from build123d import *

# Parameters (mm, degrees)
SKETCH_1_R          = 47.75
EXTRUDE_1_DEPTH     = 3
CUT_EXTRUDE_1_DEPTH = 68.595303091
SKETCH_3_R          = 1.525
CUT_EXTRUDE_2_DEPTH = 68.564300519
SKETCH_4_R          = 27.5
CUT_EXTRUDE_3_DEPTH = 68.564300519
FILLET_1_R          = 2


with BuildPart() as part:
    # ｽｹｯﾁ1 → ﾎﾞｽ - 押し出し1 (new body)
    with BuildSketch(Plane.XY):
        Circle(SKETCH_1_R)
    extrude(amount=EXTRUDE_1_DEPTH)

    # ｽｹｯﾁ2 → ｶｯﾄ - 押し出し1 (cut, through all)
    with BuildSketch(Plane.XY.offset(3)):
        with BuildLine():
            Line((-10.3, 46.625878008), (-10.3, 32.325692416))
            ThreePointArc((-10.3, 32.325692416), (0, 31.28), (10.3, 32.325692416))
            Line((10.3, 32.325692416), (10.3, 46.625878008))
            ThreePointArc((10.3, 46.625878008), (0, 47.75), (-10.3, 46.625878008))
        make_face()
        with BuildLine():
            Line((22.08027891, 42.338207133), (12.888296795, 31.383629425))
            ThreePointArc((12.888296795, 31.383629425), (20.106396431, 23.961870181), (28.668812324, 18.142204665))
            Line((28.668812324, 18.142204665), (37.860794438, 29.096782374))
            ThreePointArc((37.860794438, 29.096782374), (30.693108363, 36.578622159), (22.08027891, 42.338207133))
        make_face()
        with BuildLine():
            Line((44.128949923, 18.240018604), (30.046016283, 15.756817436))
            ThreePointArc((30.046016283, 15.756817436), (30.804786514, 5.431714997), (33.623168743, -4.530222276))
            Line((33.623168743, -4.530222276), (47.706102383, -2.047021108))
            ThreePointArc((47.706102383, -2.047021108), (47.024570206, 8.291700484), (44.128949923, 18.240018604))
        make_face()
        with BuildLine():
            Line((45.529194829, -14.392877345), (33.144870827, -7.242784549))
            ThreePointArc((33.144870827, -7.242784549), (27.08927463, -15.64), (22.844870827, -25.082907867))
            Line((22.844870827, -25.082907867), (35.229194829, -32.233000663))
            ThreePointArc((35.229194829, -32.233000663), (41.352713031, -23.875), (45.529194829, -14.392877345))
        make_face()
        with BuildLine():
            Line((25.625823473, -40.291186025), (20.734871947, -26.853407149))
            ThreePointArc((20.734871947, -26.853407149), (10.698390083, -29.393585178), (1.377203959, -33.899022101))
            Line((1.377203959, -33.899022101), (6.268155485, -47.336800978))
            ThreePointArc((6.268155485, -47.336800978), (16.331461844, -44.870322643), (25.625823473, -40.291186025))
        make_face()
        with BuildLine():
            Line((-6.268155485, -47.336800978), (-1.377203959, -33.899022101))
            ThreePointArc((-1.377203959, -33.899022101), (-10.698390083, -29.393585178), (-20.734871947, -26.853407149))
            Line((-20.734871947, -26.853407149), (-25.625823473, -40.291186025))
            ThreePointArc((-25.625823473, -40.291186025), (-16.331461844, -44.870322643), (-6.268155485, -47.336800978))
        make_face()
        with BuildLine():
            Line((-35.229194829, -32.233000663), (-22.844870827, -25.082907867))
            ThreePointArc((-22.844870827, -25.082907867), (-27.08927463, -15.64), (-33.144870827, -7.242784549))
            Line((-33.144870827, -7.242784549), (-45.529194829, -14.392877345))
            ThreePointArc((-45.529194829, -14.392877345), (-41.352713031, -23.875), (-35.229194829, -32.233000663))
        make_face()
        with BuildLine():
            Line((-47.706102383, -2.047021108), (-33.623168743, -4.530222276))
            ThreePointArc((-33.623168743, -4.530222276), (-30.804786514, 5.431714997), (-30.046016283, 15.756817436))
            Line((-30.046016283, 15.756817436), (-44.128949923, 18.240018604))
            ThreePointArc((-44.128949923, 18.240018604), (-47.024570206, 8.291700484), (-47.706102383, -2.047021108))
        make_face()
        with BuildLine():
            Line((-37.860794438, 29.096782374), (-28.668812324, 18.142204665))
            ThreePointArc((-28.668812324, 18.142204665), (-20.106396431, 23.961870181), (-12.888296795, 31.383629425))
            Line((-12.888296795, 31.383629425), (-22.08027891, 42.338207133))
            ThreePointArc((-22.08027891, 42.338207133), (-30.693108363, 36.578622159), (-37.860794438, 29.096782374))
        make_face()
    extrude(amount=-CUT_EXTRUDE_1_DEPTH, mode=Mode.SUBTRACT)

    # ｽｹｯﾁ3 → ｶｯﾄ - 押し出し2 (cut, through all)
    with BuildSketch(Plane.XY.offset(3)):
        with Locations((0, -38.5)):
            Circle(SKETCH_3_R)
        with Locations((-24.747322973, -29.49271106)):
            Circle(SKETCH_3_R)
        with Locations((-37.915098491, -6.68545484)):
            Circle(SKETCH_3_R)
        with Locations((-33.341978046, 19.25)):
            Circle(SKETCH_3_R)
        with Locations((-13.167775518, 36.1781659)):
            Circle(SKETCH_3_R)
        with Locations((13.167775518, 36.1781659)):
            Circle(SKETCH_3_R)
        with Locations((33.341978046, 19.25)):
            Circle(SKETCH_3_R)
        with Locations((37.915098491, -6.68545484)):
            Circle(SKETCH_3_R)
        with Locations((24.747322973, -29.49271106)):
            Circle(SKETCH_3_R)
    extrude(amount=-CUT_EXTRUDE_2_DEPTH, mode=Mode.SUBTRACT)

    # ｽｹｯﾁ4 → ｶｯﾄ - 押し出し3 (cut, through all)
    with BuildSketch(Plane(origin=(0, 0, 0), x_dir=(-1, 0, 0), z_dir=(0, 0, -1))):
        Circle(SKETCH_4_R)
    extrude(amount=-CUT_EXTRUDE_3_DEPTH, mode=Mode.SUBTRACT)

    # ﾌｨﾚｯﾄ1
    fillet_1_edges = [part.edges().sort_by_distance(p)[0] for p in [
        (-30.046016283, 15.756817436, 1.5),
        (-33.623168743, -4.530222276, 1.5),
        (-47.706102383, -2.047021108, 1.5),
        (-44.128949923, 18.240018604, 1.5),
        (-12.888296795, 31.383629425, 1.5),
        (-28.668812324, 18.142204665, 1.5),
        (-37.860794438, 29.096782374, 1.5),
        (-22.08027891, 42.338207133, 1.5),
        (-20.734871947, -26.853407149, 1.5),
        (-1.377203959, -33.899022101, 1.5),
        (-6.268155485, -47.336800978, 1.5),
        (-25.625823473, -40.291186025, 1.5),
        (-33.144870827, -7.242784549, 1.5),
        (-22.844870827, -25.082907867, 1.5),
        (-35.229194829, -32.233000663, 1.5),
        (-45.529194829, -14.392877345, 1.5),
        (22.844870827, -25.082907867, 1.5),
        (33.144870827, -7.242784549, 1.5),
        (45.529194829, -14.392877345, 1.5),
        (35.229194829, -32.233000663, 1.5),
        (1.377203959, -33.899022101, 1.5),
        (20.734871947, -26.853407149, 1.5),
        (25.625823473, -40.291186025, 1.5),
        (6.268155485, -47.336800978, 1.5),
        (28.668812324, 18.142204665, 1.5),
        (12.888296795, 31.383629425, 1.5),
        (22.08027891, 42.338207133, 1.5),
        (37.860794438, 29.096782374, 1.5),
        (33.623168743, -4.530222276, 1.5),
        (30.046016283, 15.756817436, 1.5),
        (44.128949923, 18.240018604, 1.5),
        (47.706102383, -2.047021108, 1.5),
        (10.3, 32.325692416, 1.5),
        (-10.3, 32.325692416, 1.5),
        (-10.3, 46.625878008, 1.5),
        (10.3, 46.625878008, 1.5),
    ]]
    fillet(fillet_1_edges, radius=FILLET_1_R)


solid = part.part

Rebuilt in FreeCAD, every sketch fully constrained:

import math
import FreeCAD as App
import Part
import Sketcher

V = App.Vector
Q = App.Units.Quantity


def edges_at(feature, points):
    """Names of the edges that pass closest to the given points."""
    edges = feature.Shape.Edges
    near = lambda p: min(range(len(edges)), key=lambda i: edges[i].distToShape(Part.Vertex(*p))[0])
    return sorted({f"Edge{near(p) + 1}" for p in points})

doc = App.newDocument("Part")
body = doc.addObject("PartDesign::Body", "Body")

# Sketch on XY plane
sketch1 = body.newObject("Sketcher::SketchObject", "Sketch")
sketch1.AttachmentSupport = (doc.getObject("XY_Plane"), [""])
sketch1.MapMode = "FlatFace"
sketch1.addGeometry(Part.Circle(V(0, 0, 0), V(0, 0, 1), 47.75), False)
sketch1.addConstraint([
    Sketcher.Constraint("Coincident", 0, 3, -1, 1),
    Sketcher.Constraint("Diameter", 0, Q("95.5 mm")),
])
pad1 = body.newObject("PartDesign::Pad", "Pad")
pad1.Profile = sketch1
pad1.Length = 3

# Sketch on XY plane
sketch2 = body.newObject("Sketcher::SketchObject", "Sketch001")
sketch2.AttachmentSupport = (doc.getObject("XY_Plane"), [""])
sketch2.MapMode = "FlatFace"
sketch2.AttachmentOffset = App.Placement(V(0, 0, 3), App.Rotation())
sketch2.addGeometry([
    Part.LineSegment(V(-10.3, 46.625878, 0), V(-10.3, 32.325692, 0)),  # 0
    Part.ArcOfCircle(Part.Circle(V(0, 82.53, 0), V(0, 0, 1), 51.25), math.radians(-101.594016), math.radians(-78.405984)),  # 1
    Part.LineSegment(V(10.3, 32.325692, 0), V(10.3, 46.625878, 0)),  # 2
    Part.ArcOfCircle(Part.Circle(V(0, 0, 0), V(0, 0, 1), 47.75), math.radians(77.543003), math.radians(102.456997)),  # 3
    Part.LineSegment(V(22.080279, 42.338207, 0), V(12.888297, 31.383629, 0)),  # 4
    Part.ArcOfCircle(Part.Circle(V(53.049261, 63.221648, 0), V(0, 0, 1), 51.25), math.radians(-141.594016), math.radians(-118.405984)),  # 5
    Part.LineSegment(V(28.668812, 18.142205, 0), V(37.860794, 29.096782, 0)),  # 6
    Part.ArcOfCircle(Part.Circle(V(0, 0, 0), V(0, 0, 1), 47.75), math.radians(37.543003), math.radians(62.456997)),  # 7
    Part.LineSegment(V(44.12895, 18.240019, 0), V(30.046016, 15.756817, 0)),  # 8
    Part.ArcOfCircle(Part.Circle(V(81.276184, 14.331184, 0), V(0, 0, 1), 51.25), math.radians(178.405984), math.radians(201.594016)),  # 9
    Part.LineSegment(V(33.623169, -4.530222, 0), V(47.706102, -2.047021, 0)),  # 10
    Part.ArcOfCircle(Part.Circle(V(0, 0, 0), V(0, 0, 1), 47.75), math.radians(-2.456997), math.radians(22.456997)),  # 11
    Part.LineSegment(V(45.529195, -14.392877, 0), V(33.144871, -7.242785, 0)),  # 12
    Part.ArcOfCircle(Part.Circle(V(71.473077, -41.265, 0), V(0, 0, 1), 51.25), math.radians(138.405984), math.radians(161.594016)),  # 13
    Part.LineSegment(V(22.844871, -25.082908, 0), V(35.229195, -32.233001, 0)),  # 14
    Part.ArcOfCircle(Part.Circle(V(0, 0, 0), V(0, 0, 1), 47.75), math.radians(-42.456997), math.radians(-17.543003)),  # 15
    Part.LineSegment(V(25.625823, -40.291186, 0), V(20.734872, -26.853407, 0)),  # 16
    Part.ArcOfCircle(Part.Circle(V(28.226922, -77.552832, 0), V(0, 0, 1), 51.25), math.radians(98.405984), math.radians(121.594016)),  # 17
    Part.LineSegment(V(1.377204, -33.899022, 0), V(6.268155, -47.336801, 0)),  # 18
    Part.ArcOfCircle(Part.Circle(V(0, 0, 0), V(0, 0, 1), 47.75), math.radians(-82.456997), math.radians(-57.543003)),  # 19
    Part.LineSegment(V(-6.268155, -47.336801, 0), V(-1.377204, -33.899022, 0)),  # 20
    Part.ArcOfCircle(Part.Circle(V(-28.226922, -77.552832, 0), V(0, 0, 1), 51.25), math.radians(58.405984), math.radians(81.594016)),  # 21
    Part.LineSegment(V(-20.734872, -26.853407, 0), V(-25.625823, -40.291186, 0)),  # 22
    Part.ArcOfCircle(Part.Circle(V(0, 0, 0), V(0, 0, 1), 47.75), math.radians(-122.456997), math.radians(-97.543003)),  # 23
    Part.LineSegment(V(-35.229195, -32.233001, 0), V(-22.844871, -25.082908, 0)),  # 24
    Part.ArcOfCircle(Part.Circle(V(-71.473077, -41.265, 0), V(0, 0, 1), 51.25), math.radians(18.405984), math.radians(41.594016)),  # 25
    Part.LineSegment(V(-33.144871, -7.242785, 0), V(-45.529195, -14.392877, 0)),  # 26
    Part.ArcOfCircle(Part.Circle(V(0, 0, 0), V(0, 0, 1), 47.75), math.radians(-162.456997), math.radians(-137.543003)),  # 27
    Part.LineSegment(V(-47.706102, -2.047021, 0), V(-33.623169, -4.530222, 0)),  # 28
    Part.ArcOfCircle(Part.Circle(V(-81.276184, 14.331184, 0), V(0, 0, 1), 51.25), math.radians(-21.594016), math.radians(1.594016)),  # 29
    Part.LineSegment(V(-30.046016, 15.756817, 0), V(-44.12895, 18.240019, 0)),  # 30
    Part.ArcOfCircle(Part.Circle(V(0, 0, 0), V(0, 0, 1), 47.75), math.radians(157.543003), math.radians(182.456997)),  # 31
    Part.LineSegment(V(-37.860794, 29.096782, 0), V(-28.668812, 18.142205, 0)),  # 32
    Part.ArcOfCircle(Part.Circle(V(-53.049261, 63.221648, 0), V(0, 0, 1), 51.25), math.radians(-61.594016), math.radians(-38.405984)),  # 33
    Part.LineSegment(V(-12.888297, 31.383629, 0), V(-22.080279, 42.338207, 0)),  # 34
    Part.ArcOfCircle(Part.Circle(V(0, 0, 0), V(0, 0, 1), 47.75), math.radians(117.543003), math.radians(142.456997)),  # 35
], False)
sketch2.addConstraint([
    Sketcher.Constraint("Coincident", 0, 2, 1, 1),
    Sketcher.Constraint("Coincident", 1, 2, 2, 1),
    Sketcher.Constraint("Coincident", 2, 2, 3, 1),
    Sketcher.Constraint("Coincident", 3, 2, 0, 1),
    Sketcher.Constraint("Coincident", 4, 2, 5, 1),
    Sketcher.Constraint("Coincident", 5, 2, 6, 1),
    Sketcher.Constraint("Coincident", 6, 2, 7, 1),
    Sketcher.Constraint("Coincident", 7, 2, 4, 1),
    Sketcher.Constraint("Coincident", 8, 2, 9, 1),
    Sketcher.Constraint("Coincident", 9, 2, 10, 1),
    Sketcher.Constraint("Coincident", 10, 2, 11, 1),
    Sketcher.Constraint("Coincident", 11, 2, 8, 1),
    Sketcher.Constraint("Coincident", 12, 2, 13, 1),
    Sketcher.Constraint("Coincident", 13, 2, 14, 1),
    Sketcher.Constraint("Coincident", 14, 2, 15, 1),
    Sketcher.Constraint("Coincident", 15, 2, 12, 1),
    Sketcher.Constraint("Coincident", 16, 2, 17, 1),
    Sketcher.Constraint("Coincident", 17, 2, 18, 1),
    Sketcher.Constraint("Coincident", 18, 2, 19, 1),
    Sketcher.Constraint("Coincident", 19, 2, 16, 1),
    Sketcher.Constraint("Coincident", 20, 2, 21, 1),
    Sketcher.Constraint("Coincident", 21, 2, 22, 1),
    Sketcher.Constraint("Coincident", 22, 2, 23, 1),
    Sketcher.Constraint("Coincident", 23, 2, 20, 1),
    Sketcher.Constraint("Coincident", 24, 2, 25, 1),
    Sketcher.Constraint("Coincident", 25, 2, 26, 1),
    Sketcher.Constraint("Coincident", 26, 2, 27, 1),
    Sketcher.Constraint("Coincident", 27, 2, 24, 1),
    Sketcher.Constraint("Coincident", 28, 2, 29, 1),
    Sketcher.Constraint("Coincident", 29, 2, 30, 1),
    Sketcher.Constraint("Coincident", 30, 2, 31, 1),
    Sketcher.Constraint("Coincident", 31, 2, 28, 1),
    Sketcher.Constraint("Coincident", 32, 2, 33, 1),
    Sketcher.Constraint("Coincident", 33, 2, 34, 1),
    Sketcher.Constraint("Coincident", 34, 2, 35, 1),
    Sketcher.Constraint("Coincident", 35, 2, 32, 1),
    Sketcher.Constraint("Vertical", 0),
    Sketcher.Constraint("Vertical", 2),
    Sketcher.Constraint("Coincident", 3, 3, -1, 1),
    Sketcher.Constraint("Coincident", 7, 3, -1, 1),
    Sketcher.Constraint("Coincident", 11, 3, -1, 1),
    Sketcher.Constraint("Coincident", 15, 3, -1, 1),
    Sketcher.Constraint("Coincident", 19, 3, -1, 1),
    Sketcher.Constraint("Coincident", 23, 3, -1, 1),
    Sketcher.Constraint("Coincident", 27, 3, -1, 1),
    Sketcher.Constraint("Coincident", 31, 3, -1, 1),
    Sketcher.Constraint("Coincident", 35, 3, -1, 1),
    Sketcher.Constraint("Equal", 1, 5),
    Sketcher.Constraint("Equal", 3, 7),
    Sketcher.Constraint("Equal", 5, 9),
    Sketcher.Constraint("Equal", 7, 11),
    Sketcher.Constraint("Equal", 9, 13),
    Sketcher.Constraint("Equal", 11, 15),
    Sketcher.Constraint("Equal", 13, 17),
    Sketcher.Constraint("Equal", 15, 19),
    Sketcher.Constraint("Equal", 17, 21),
    Sketcher.Constraint("Equal", 19, 23),
    Sketcher.Constraint("Equal", 21, 25),
    Sketcher.Constraint("Equal", 23, 27),
    Sketcher.Constraint("Equal", 25, 29),
    Sketcher.Constraint("Equal", 27, 31),
    Sketcher.Constraint("Equal", 29, 33),
    Sketcher.Constraint("Equal", 31, 35),
    Sketcher.Constraint("Symmetric", 17, 3, 21, 3, -2),
    Sketcher.Constraint("Symmetric", 13, 3, 25, 3, -2),
    Sketcher.Constraint("Symmetric", 9, 3, 29, 3, -2),
    Sketcher.Constraint("Symmetric", 5, 3, 33, 3, -2),
    Sketcher.Constraint("Symmetric", 0, 2, 1, 2, -2),
    Sketcher.Constraint("Parallel", 4, 6),
    Sketcher.Constraint("Parallel", 8, 10),
    Sketcher.Constraint("Parallel", 12, 14),
    Sketcher.Constraint("Parallel", 16, 18),
    Sketcher.Constraint("Parallel", 20, 22),
    Sketcher.Constraint("Parallel", 24, 26),
    Sketcher.Constraint("Parallel", 28, 30),
    Sketcher.Constraint("Parallel", 32, 34),
    Sketcher.Constraint("Horizontal", 17, 2, 20, 2),
    Sketcher.Constraint("Horizontal", 16, 2, 21, 2),
    Sketcher.Constraint("Horizontal", 19, 2, 22, 2),
    Sketcher.Constraint("Horizontal", 13, 2, 24, 2),
    Sketcher.Constraint("Horizontal", 12, 2, 25, 2),
    Sketcher.Constraint("Horizontal", 15, 2, 26, 2),
    Sketcher.Constraint("Horizontal", 9, 2, 28, 2),
    Sketcher.Constraint("Horizontal", 8, 2, 29, 2),
    Sketcher.Constraint("Horizontal", 11, 2, 30, 2),
    Sketcher.Constraint("Horizontal", 5, 2, 32, 2),
    Sketcher.Constraint("Horizontal", 4, 2, 33, 2),
    Sketcher.Constraint("Horizontal", 7, 2, 34, 2),
    Sketcher.Constraint("Equal", 4, 6),
    Sketcher.Constraint("Equal", 6, 8),
    Sketcher.Constraint("Equal", 8, 10),
    Sketcher.Constraint("Equal", 10, 12),
    Sketcher.Constraint("Equal", 12, 14),
    Sketcher.Constraint("Equal", 14, 16),
    Sketcher.Constraint("Equal", 16, 18),
    Sketcher.Constraint("Angle", 4, Q("-130 deg")),
    Sketcher.Constraint("Angle", 8, Q("-170 deg")),
    Sketcher.Constraint("Angle", 12, Q("150 deg")),
    Sketcher.Constraint("Angle", 16, Q("110 deg")),
    Sketcher.Constraint("Radius", 1, Q("51.25 mm")),
    Sketcher.Constraint("Radius", 3, Q("47.75 mm")),
    Sketcher.Constraint("DistanceX", 0, 2, -1, 1, Q("10.3 mm")),
    Sketcher.Constraint("DistanceX", 13, 2, 12, 2, Q("10.3 mm")),
    Sketcher.Constraint("DistanceY", -1, 1, 1, 3, Q("82.53 mm")),
    Sketcher.Constraint("DistanceX", 16, 2, 13, 2, Q("2.109999 mm")),
    Sketcher.Constraint("DistanceY", 13, 3, -1, 1, Q("41.265 mm")),
    Sketcher.Constraint("DistanceY", 14, 2, -1, 1, Q("32.233001 mm")),
    Sketcher.Constraint("DistanceY", 18, 2, -1, 1, Q("47.336801 mm")),
    Sketcher.Constraint("DistanceY", 12, 2, 8, 2, Q("22.999602 mm")),
    Sketcher.Constraint("DistanceX", -1, 1, 5, 3, Q("53.049261 mm")),
    Sketcher.Constraint("DistanceY", -1, 1, 4, 2, Q("31.383629 mm")),
    Sketcher.Constraint("DistanceY", 10, 2, -1, 1, Q("2.047021 mm")),
])
pocket1 = body.newObject("PartDesign::Pocket", "Pocket")
pocket1.Profile = sketch2
pocket1.Type = "ThroughAll"

# Sketch on XY plane
sketch3 = body.newObject("Sketcher::SketchObject", "Sketch002")
sketch3.AttachmentSupport = (doc.getObject("XY_Plane"), [""])
sketch3.MapMode = "FlatFace"
sketch3.AttachmentOffset = App.Placement(V(0, 0, 3), App.Rotation())
sketch3.addGeometry([
    Part.Circle(V(0, -38.5, 0), V(0, 0, 1), 1.525),  # 0
    Part.Circle(V(-24.747323, -29.492711, 0), V(0, 0, 1), 1.525),  # 1
    Part.Circle(V(-37.915098, -6.685455, 0), V(0, 0, 1), 1.525),  # 2
    Part.Circle(V(-33.341978, 19.25, 0), V(0, 0, 1), 1.525),  # 3
    Part.Circle(V(-13.167776, 36.178166, 0), V(0, 0, 1), 1.525),  # 4
    Part.Circle(V(13.167776, 36.178166, 0), V(0, 0, 1), 1.525),  # 5
    Part.Circle(V(33.341978, 19.25, 0), V(0, 0, 1), 1.525),  # 6
    Part.Circle(V(37.915098, -6.685455, 0), V(0, 0, 1), 1.525),  # 7
    Part.Circle(V(24.747323, -29.492711, 0), V(0, 0, 1), 1.525),  # 8
], False)
sketch3.addConstraint([
    Sketcher.Constraint("Equal", 0, 1),
    Sketcher.Constraint("Equal", 1, 2),
    Sketcher.Constraint("Equal", 2, 3),
    Sketcher.Constraint("Equal", 3, 4),
    Sketcher.Constraint("Equal", 4, 5),
    Sketcher.Constraint("Equal", 5, 6),
    Sketcher.Constraint("Equal", 6, 7),
    Sketcher.Constraint("Equal", 7, 8),
    Sketcher.Constraint("Symmetric", 4, 3, 5, 3, -2),
    Sketcher.Constraint("Symmetric", 3, 3, 6, 3, -2),
    Sketcher.Constraint("Symmetric", 2, 3, 7, 3, -2),
    Sketcher.Constraint("Symmetric", 1, 3, 8, 3, -2),
    Sketcher.Constraint("PointOnObject", 0, 3, -2),
    Sketcher.Constraint("Diameter", 0, Q("3.05 mm")),
    Sketcher.Constraint("DistanceY", 0, 3, -1, 1, Q("38.5 mm")),
    Sketcher.Constraint("DistanceY", -1, 1, 3, 3, Q("19.25 mm")),
    Sketcher.Constraint("DistanceX", 2, 3, -1, 1, Q("37.915098 mm")),
    Sketcher.Constraint("DistanceX", 1, 3, 5, 3, Q("37.915098 mm")),
    Sketcher.Constraint("DistanceX", 1, 3, 6, 3, Q("58.089301 mm")),
    Sketcher.Constraint("DistanceY", 1, 3, -1, 1, Q("29.492711 mm")),
    Sketcher.Constraint("DistanceX", 3, 3, -1, 1, Q("33.341978 mm")),
    Sketcher.Constraint("DistanceY", 2, 3, 4, 3, Q("42.863621 mm")),
    Sketcher.Constraint("DistanceY", 2, 3, -1, 1, Q("6.685455 mm")),
])
pocket2 = body.newObject("PartDesign::Pocket", "Pocket001")
pocket2.Profile = sketch3
pocket2.Type = "ThroughAll"

# Sketch on XY plane
sketch4 = body.newObject("Sketcher::SketchObject", "Sketch003")
sketch4.AttachmentSupport = (doc.getObject("XY_Plane"), [""])
sketch4.MapMode = "FlatFace"
sketch4.addGeometry(Part.Circle(V(0, 0, 0), V(0, 0, 1), 27.5), False)
sketch4.addConstraint([
    Sketcher.Constraint("Coincident", 0, 3, -1, 1),
    Sketcher.Constraint("Diameter", 0, Q("55 mm")),
])
pocket3 = body.newObject("PartDesign::Pocket", "Pocket002")
pocket3.Profile = sketch4
pocket3.Type = "ThroughAll"
pocket3.Reversed = True
doc.recompute()

fillet = body.newObject("PartDesign::Fillet", "Fillet")
fillet.Base = (pocket3, edges_at(pocket3, [
    (-30.046, 15.757, 1.5),
    (-33.623, -4.53, 1.5),
    (-47.706, -2.047, 1.5),
    (-44.129, 18.24, 1.5),
    (-12.888, 31.384, 1.5),
    (-28.669, 18.142, 1.5),
    (-37.861, 29.097, 1.5),
    (-22.08, 42.338, 1.5),
    (-20.735, -26.853, 1.5),
    (-1.377, -33.899, 1.5),
    (-6.268, -47.337, 1.5),
    (-25.626, -40.291, 1.5),
    (-33.145, -7.243, 1.5),
    (-22.845, -25.083, 1.5),
    (-35.229, -32.233, 1.5),
    (-45.529, -14.393, 1.5),
    (22.845, -25.083, 1.5),
    (33.145, -7.243, 1.5),
    (45.529, -14.393, 1.5),
    (35.229, -32.233, 1.5),
    (1.377, -33.899, 1.5),
    (20.735, -26.853, 1.5),
    (25.626, -40.291, 1.5),
    (6.268, -47.337, 1.5),
    (28.669, 18.142, 1.5),
    (12.888, 31.384, 1.5),
    (22.08, 42.338, 1.5),
    (37.861, 29.097, 1.5),
    (33.623, -4.53, 1.5),
    (30.046, 15.757, 1.5),
    (44.129, 18.24, 1.5),
    (47.706, -2.047, 1.5),
    (10.3, 32.326, 1.5),
    (-10.3, 32.326, 1.5),
    (-10.3, 46.626, 1.5),
    (10.3, 46.626, 1.5),
]))
fillet.Radius = 2

doc.recompute()
